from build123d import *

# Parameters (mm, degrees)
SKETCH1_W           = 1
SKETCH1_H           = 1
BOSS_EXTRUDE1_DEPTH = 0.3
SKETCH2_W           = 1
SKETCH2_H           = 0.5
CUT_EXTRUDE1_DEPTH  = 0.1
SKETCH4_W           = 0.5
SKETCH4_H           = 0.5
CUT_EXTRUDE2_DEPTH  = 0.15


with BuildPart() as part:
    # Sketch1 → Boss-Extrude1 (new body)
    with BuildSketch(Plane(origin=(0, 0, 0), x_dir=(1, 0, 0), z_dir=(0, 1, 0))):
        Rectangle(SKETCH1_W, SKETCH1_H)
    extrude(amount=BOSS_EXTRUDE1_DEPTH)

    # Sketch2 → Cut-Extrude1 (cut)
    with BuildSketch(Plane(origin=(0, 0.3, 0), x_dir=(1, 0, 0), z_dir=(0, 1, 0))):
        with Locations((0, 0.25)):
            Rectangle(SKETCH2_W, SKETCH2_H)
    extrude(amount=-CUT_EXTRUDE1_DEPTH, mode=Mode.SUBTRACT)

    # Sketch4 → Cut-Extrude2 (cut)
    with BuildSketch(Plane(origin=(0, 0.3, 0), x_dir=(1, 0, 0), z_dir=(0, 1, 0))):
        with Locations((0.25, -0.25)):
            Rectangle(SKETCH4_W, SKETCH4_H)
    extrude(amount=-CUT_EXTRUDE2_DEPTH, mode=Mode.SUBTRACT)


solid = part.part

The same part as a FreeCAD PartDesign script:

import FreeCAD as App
import Part
import Sketcher
from FreeCAD import Vector

doc = App.newDocument("Part")
body = doc.addObject("PartDesign::Body", "Body")

sketch1 = doc.addObject("Sketcher::SketchObject", "Sketch")
body.addObject(sketch1)
sketch1.AttachmentSupport = (doc.XZ_Plane, [""])
sketch1.MapMode = "FlatFace"
sketch1.addGeometry([
    Part.LineSegment(Vector(-0.5, -0.5, 0), Vector(-0.5, 0.5, 0)),
    Part.LineSegment(Vector(-0.5, 0.5, 0), Vector(0.5, 0.5, 0)),
    Part.LineSegment(Vector(0.5, 0.5, 0), Vector(0.5, -0.5, 0)),
    Part.LineSegment(Vector(0.5, -0.5, 0), Vector(-0.5, -0.5, 0)),
], False)
sketch1.addConstraint([
    Sketcher.Constraint("Coincident", 0, 2, 1, 1),
    Sketcher.Constraint("Coincident", 1, 2, 2, 1),
    Sketcher.Constraint("Coincident", 2, 2, 3, 1),
    Sketcher.Constraint("Coincident", 3, 2, 0, 1),
    Sketcher.Constraint("Vertical", 0),
    Sketcher.Constraint("Horizontal", 1),
    Sketcher.Constraint("Vertical", 2),
    Sketcher.Constraint("Horizontal", 3),
    Sketcher.Constraint("Symmetric", 0, 2, 2, 2, -1, 1),
    Sketcher.Constraint("Equal", 3, 0),
    Sketcher.Constraint("DistanceX", 1, 1, 1, 2, 1.0),
])
pad1 = doc.addObject("PartDesign::Pad", "Pad")
body.addObject(pad1)
pad1.Profile = sketch1
pad1.Length = 0.3
pad1.Reversed = True

sketch2 = doc.addObject("Sketcher::SketchObject", "Sketch001")
body.addObject(sketch2)
sketch2.AttachmentSupport = (doc.XZ_Plane, [""])
sketch2.MapMode = "FlatFace"
sketch2.AttachmentOffset = App.Placement(Vector(0, 0, -0.3), App.Rotation())
sketch2.addGeometry([
    Part.LineSegment(Vector(-0.5, -0.5, 0), Vector(-0.5, 0, 0)),
    Part.LineSegment(Vector(-0.5, 0, 0), Vector(0.5, 0, 0)),
    Part.LineSegment(Vector(0.5, 0, 0), Vector(0.5, -0.5, 0)),
    Part.LineSegment(Vector(0.5, -0.5, 0), Vector(-0.5, -0.5, 0)),
], False)
sketch2.addConstraint([
    Sketcher.Constraint("Coincident", 0, 2, 1, 1),
    Sketcher.Constraint("Coincident", 1, 2, 2, 1),
    Sketcher.Constraint("Coincident", 2, 2, 3, 1),
    Sketcher.Constraint("Coincident", 3, 2, 0, 1),
    Sketcher.Constraint("Vertical", 0),
    Sketcher.Constraint("Horizontal", 1),
    Sketcher.Constraint("Vertical", 2),
    Sketcher.Constraint("Horizontal", 3),
    Sketcher.Constraint("Symmetric", 0, 2, 1, 2, -1, 1),
    Sketcher.Constraint("DistanceX", 1, 1, 1, 2, 1.0),
    Sketcher.Constraint("DistanceY", 0, 1, 0, 2, 0.5),
])
pocket1 = doc.addObject("PartDesign::Pocket", "Pocket")
body.addObject(pocket1)
pocket1.Profile = sketch2
pocket1.Length = 0.1
pocket1.Reversed = True

sketch3 = doc.addObject("Sketcher::SketchObject", "Sketch002")
body.addObject(sketch3)
sketch3.AttachmentSupport = (doc.XZ_Plane, [""])
sketch3.MapMode = "FlatFace"
sketch3.AttachmentOffset = App.Placement(Vector(0, 0, -0.3), App.Rotation())
sketch3.addGeometry([
    Part.LineSegment(Vector(0, 0, 0), Vector(0, 0.5, 0)),
    Part.LineSegment(Vector(0, 0.5, 0), Vector(0.5, 0.5, 0)),
    Part.LineSegment(Vector(0.5, 0.5, 0), Vector(0.5, 0, 0)),
    Part.LineSegment(Vector(0.5, 0, 0), Vector(0, 0, 0)),
], False)
sketch3.addConstraint([
    Sketcher.Constraint("Coincident", 0, 2, 1, 1),
    Sketcher.Constraint("Coincident", 1, 2, 2, 1),
    Sketcher.Constraint("Coincident", 2, 2, 3, 1),
    Sketcher.Constraint("Coincident", 3, 2, 0, 1),
    Sketcher.Constraint("Vertical", 0),
    Sketcher.Constraint("Horizontal", 1),
    Sketcher.Constraint("Vertical", 2),
    Sketcher.Constraint("Horizontal", 3),
    Sketcher.Constraint("Coincident", 3, 2, -1, 1),
    Sketcher.Constraint("Equal", 3, 0),
    Sketcher.Constraint("DistanceX", 1, 1, 1, 2, 0.5),
])
pocket2 = doc.addObject("PartDesign::Pocket", "Pocket001")
body.addObject(pocket2)
pocket2.Profile = sketch3
pocket2.Length = 0.15
pocket2.Reversed = True

doc.recompute()
